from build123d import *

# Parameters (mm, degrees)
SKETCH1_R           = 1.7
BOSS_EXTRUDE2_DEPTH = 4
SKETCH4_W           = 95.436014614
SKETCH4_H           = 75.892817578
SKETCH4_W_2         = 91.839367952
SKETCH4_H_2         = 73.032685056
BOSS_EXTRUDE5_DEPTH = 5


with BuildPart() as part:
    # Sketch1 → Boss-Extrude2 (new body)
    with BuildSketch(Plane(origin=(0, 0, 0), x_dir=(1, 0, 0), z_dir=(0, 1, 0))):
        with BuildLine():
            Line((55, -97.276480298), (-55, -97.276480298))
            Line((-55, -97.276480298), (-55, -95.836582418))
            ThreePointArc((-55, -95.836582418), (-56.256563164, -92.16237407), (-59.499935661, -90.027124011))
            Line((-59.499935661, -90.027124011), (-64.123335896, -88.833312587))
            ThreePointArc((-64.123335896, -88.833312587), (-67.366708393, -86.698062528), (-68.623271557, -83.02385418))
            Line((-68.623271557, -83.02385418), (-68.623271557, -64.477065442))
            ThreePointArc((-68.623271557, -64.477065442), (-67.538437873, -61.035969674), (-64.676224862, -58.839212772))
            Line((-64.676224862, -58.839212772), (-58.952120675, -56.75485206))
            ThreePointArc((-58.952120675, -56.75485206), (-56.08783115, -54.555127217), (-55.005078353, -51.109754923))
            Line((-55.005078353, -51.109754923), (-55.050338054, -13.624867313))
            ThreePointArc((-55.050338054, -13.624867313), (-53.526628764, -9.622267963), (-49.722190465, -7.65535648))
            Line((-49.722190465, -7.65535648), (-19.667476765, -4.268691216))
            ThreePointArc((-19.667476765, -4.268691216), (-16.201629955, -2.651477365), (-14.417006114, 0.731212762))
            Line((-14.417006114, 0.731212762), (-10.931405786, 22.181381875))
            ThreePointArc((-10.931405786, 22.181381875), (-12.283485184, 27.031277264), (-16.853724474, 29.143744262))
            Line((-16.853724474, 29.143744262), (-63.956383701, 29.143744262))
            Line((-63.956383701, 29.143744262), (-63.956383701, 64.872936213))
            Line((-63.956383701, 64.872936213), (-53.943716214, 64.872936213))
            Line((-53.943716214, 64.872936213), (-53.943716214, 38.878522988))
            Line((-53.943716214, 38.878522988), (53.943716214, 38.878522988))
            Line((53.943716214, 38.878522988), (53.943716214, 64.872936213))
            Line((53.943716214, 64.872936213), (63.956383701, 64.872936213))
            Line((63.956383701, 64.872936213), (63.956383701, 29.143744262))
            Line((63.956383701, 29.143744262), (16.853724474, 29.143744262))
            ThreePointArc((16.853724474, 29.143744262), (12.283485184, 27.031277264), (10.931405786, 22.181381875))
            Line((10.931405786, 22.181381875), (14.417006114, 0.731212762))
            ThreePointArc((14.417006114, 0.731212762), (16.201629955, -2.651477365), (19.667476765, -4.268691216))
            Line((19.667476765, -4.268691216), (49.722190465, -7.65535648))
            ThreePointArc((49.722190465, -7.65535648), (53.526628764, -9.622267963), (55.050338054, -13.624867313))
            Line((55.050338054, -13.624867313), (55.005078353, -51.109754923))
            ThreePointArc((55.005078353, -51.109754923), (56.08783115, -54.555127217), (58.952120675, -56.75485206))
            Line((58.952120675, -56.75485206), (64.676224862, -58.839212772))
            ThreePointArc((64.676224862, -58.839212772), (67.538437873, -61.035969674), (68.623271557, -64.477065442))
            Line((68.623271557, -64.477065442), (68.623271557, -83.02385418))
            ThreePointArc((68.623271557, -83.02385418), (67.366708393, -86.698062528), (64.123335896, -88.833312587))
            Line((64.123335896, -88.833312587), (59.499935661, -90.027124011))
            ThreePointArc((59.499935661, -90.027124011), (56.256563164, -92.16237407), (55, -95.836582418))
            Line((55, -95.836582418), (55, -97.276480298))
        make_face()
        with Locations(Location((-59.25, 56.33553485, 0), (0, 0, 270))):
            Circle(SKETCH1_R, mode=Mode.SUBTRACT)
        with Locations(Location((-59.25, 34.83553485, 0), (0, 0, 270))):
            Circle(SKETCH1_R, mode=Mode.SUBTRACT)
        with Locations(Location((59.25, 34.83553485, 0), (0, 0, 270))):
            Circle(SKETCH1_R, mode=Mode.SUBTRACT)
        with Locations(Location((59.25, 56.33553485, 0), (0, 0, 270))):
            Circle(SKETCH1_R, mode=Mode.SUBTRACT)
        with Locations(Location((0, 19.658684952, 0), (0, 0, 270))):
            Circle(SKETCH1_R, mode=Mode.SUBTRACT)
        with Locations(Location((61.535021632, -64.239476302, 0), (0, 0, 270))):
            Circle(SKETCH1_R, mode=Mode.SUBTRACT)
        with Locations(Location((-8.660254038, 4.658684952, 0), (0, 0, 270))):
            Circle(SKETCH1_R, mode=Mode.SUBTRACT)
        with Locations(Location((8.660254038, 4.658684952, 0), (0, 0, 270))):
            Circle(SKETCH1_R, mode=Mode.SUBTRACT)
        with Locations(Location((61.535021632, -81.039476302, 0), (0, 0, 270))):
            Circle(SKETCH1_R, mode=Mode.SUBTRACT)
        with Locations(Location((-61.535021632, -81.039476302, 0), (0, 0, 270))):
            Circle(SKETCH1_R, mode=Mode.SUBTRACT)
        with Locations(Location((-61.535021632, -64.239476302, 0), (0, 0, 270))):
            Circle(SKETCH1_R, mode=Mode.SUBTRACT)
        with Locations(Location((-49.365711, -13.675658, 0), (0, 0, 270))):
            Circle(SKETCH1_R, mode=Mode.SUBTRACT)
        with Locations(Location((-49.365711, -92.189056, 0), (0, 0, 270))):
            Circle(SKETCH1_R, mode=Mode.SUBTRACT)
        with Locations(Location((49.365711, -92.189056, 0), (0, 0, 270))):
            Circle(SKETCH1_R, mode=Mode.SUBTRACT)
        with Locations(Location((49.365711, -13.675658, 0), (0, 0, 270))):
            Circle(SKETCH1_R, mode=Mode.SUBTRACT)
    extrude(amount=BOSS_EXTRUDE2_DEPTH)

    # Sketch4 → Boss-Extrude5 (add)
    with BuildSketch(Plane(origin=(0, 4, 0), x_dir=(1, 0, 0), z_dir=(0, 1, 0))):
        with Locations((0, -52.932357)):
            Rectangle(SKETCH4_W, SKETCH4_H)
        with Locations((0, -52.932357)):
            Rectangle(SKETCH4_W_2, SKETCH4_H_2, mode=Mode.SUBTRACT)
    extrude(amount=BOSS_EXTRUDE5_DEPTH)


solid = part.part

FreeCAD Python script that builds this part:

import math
import FreeCAD as App
import Part
import Sketcher

V = App.Vector

doc = App.newDocument("Part")
body = doc.addObject("PartDesign::Body", "Body")

# Sketch on XZ plane
sketch1 = body.newObject("Sketcher::SketchObject", "Sketch")
sketch1.AttachmentSupport = (doc.getObject("XZ_Plane"), [""])
sketch1.MapMode = "FlatFace"
sketch1.addGeometry([
    Part.LineSegment(V(-55, 97.27648, 0), V(55, 97.27648, 0)),  # 0
    Part.LineSegment(V(55, 97.27648, 0), V(55, 95.836582, 0)),  # 1
    Part.ArcOfCircle(Part.Circle(V(61, 95.836582, 0), V(0, 0, 1), 6), math.radians(180), math.radians(255.521853)),  # 2
    Part.LineSegment(V(59.499936, 90.027124, 0), V(64.123336, 88.833313, 0)),  # 3
    Part.ArcOfCircle(Part.Circle(V(62.623272, 83.023854, 0), V(0, 0, 1), 6), math.radians(0), math.radians(75.521853)),  # 4
    Part.LineSegment(V(68.623272, 83.023854, 0), V(68.623272, 64.477065, 0)),  # 5
    Part.ArcOfCircle(Part.Circle(V(62.623272, 64.477065, 0), V(0, 0, 1), 6), math.radians(-69.99154), math.radians(0)),  # 6
    Part.LineSegment(V(64.676225, 58.839213, 0), V(58.952121, 56.754852, 0)),  # 7
    Part.ArcOfCircle(Part.Circle(V(61.005074, 51.116999, 0), V(0, 0, 1), 6), math.radians(110.00846), math.radians(180.06918)),  # 8
    Part.LineSegment(V(55.005078, 51.109755, 0), V(55.050338, 13.624867, 0)),  # 9
    Part.ArcOfCircle(Part.Circle(V(49.050342, 13.617623, 0), V(0, 0, 1), 6), math.radians(-83.570841), math.radians(0.06918)),  # 10
    Part.LineSegment(V(49.72219, 7.655356, 0), V(19.667477, 4.268691, 0)),  # 11
    Part.ArcOfCircle(Part.Circle(V(20.339325, -1.693575, 0), V(0, 0, 1), 6), math.radians(96.429159), math.radians(170.770249)),  # 12
    Part.LineSegment(V(14.417006, -0.731213, 0), V(10.931406, -22.181382, 0)),  # 13
    Part.ArcOfCircle(Part.Circle(V(16.853724, -23.143744, 0), V(0, 0, 1), 6), math.radians(170.770249), math.radians(270)),  # 14
    Part.LineSegment(V(16.853724, -29.143744, 0), V(63.956384, -29.143744, 0)),  # 15
    Part.LineSegment(V(63.956384, -29.143744, 0), V(63.956384, -64.872936, 0)),  # 16
    Part.LineSegment(V(63.956384, -64.872936, 0), V(53.943716, -64.872936, 0)),  # 17
    Part.LineSegment(V(53.943716, -64.872936, 0), V(53.943716, -38.878523, 0)),  # 18
    Part.LineSegment(V(53.943716, -38.878523, 0), V(-53.943716, -38.878523, 0)),  # 19
    Part.LineSegment(V(-53.943716, -38.878523, 0), V(-53.943716, -64.872936, 0)),  # 20
    Part.LineSegment(V(-53.943716, -64.872936, 0), V(-63.956384, -64.872936, 0)),  # 21
    Part.LineSegment(V(-63.956384, -64.872936, 0), V(-63.956384, -29.143744, 0)),  # 22
    Part.LineSegment(V(-63.956384, -29.143744, 0), V(-16.853724, -29.143744, 0)),  # 23
    Part.ArcOfCircle(Part.Circle(V(-16.853724, -23.143744, 0), V(0, 0, 1), 6), math.radians(-90), math.radians(9.229751)),  # 24
    Part.LineSegment(V(-10.931406, -22.181382, 0), V(-14.417006, -0.731213, 0)),  # 25
    Part.ArcOfCircle(Part.Circle(V(-20.339325, -1.693575, 0), V(0, 0, 1), 6), math.radians(9.229751), math.radians(83.570841)),  # 26
    Part.LineSegment(V(-19.667477, 4.268691, 0), V(-49.72219, 7.655356, 0)),  # 27
    Part.ArcOfCircle(Part.Circle(V(-49.050342, 13.617623, 0), V(0, 0, 1), 6), math.radians(179.93082), math.radians(263.570841)),  # 28
    Part.LineSegment(V(-55.050338, 13.624867, 0), V(-55.005078, 51.109755, 0)),  # 29
    Part.ArcOfCircle(Part.Circle(V(-61.005074, 51.116999, 0), V(0, 0, 1), 6), math.radians(-0.06918), math.radians(69.99154)),  # 30
    Part.LineSegment(V(-58.952121, 56.754852, 0), V(-64.676225, 58.839213, 0)),  # 31
    Part.ArcOfCircle(Part.Circle(V(-62.623272, 64.477065, 0), V(0, 0, 1), 6), math.radians(180), math.radians(249.99154)),  # 32
    Part.LineSegment(V(-68.623272, 64.477065, 0), V(-68.623272, 83.023854, 0)),  # 33
    Part.ArcOfCircle(Part.Circle(V(-62.623272, 83.023854, 0), V(0, 0, 1), 6), math.radians(104.478147), math.radians(180)),  # 34
    Part.LineSegment(V(-64.123336, 88.833313, 0), V(-59.499936, 90.027124, 0)),  # 35
    Part.ArcOfCircle(Part.Circle(V(-61, 95.836582, 0), V(0, 0, 1), 6), math.radians(-75.521853), math.radians(0)),  # 36
    Part.LineSegment(V(-55, 95.836582, 0), V(-55, 97.27648, 0)),  # 37
    Part.Circle(V(49.365711, 92.189056, 0), V(0, 0, 1), 1.7),  # 38
    Part.Circle(V(61.535022, 81.039476, 0), V(0, 0, 1), 1.7),  # 39
    Part.Circle(V(61.535022, 64.239476, 0), V(0, 0, 1), 1.7),  # 40
    Part.Circle(V(-49.365711, 92.189056, 0), V(0, 0, 1), 1.7),  # 41
    Part.Circle(V(-61.535022, 81.039476, 0), V(0, 0, 1), 1.7),  # 42
    Part.Circle(V(-61.535022, 64.239476, 0), V(0, 0, 1), 1.7),  # 43
    Part.Circle(V(49.365711, 13.675658, 0), V(0, 0, 1), 1.7),  # 44
    Part.Circle(V(8.660254, -4.658685, 0), V(0, 0, 1), 1.7),  # 45
    Part.Circle(V(59.25, -34.835535, 0), V(0, 0, 1), 1.7),  # 46
    Part.Circle(V(59.25, -56.335535, 0), V(0, 0, 1), 1.7),  # 47
    Part.Circle(V(-8.660254, -4.658685, 0), V(0, 0, 1), 1.7),  # 48
    Part.Circle(V(0, -19.658685, 0), V(0, 0, 1), 1.7),  # 49
    Part.Circle(V(-49.365711, 13.675658, 0), V(0, 0, 1), 1.7),  # 50
    Part.Circle(V(-59.25, -34.835535, 0), V(0, 0, 1), 1.7),  # 51
    Part.Circle(V(-59.25, -56.335535, 0), V(0, 0, 1), 1.7),  # 52
], False)
sketch1.addConstraint([
    Sketcher.Constraint("Coincident", 0, 2, 1, 1),
    Sketcher.Constraint("Tangent", 1, 2, 2, 1),
    Sketcher.Constraint("Tangent", 2, 2, 3, 1),
    Sketcher.Constraint("Tangent", 3, 2, 4, 2),
    Sketcher.Constraint("Tangent", 4, 1, 5, 1),
    Sketcher.Constraint("Tangent", 5, 2, 6, 2),
    Sketcher.Constraint("Tangent", 6, 1, 7, 1),
    Sketcher.Constraint("Tangent", 7, 2, 8, 1),
    Sketcher.Constraint("Tangent", 8, 2, 9, 1),
    Sketcher.Constraint("Tangent", 9, 2, 10, 2),
    Sketcher.Constraint("Tangent", 10, 1, 11, 1),
    Sketcher.Constraint("Tangent", 11, 2, 12, 1),
    Sketcher.Constraint("Tangent", 12, 2, 13, 1),
    Sketcher.Constraint("Tangent", 13, 2, 14, 1),
    Sketcher.Constraint("Tangent", 14, 2, 15, 1),
    Sketcher.Constraint("Coincident", 15, 2, 16, 1),
    Sketcher.Constraint("Coincident", 16, 2, 17, 1),
    Sketcher.Constraint("Coincident", 17, 2, 18, 1),
    Sketcher.Constraint("Coincident", 18, 2, 19, 1),
    Sketcher.Constraint("Coincident", 19, 2, 20, 1),
    Sketcher.Constraint("Coincident", 20, 2, 21, 1),
    Sketcher.Constraint("Coincident", 21, 2, 22, 1),
    Sketcher.Constraint("Coincident", 22, 2, 23, 1),
    Sketcher.Constraint("Tangent", 23, 2, 24, 1),
    Sketcher.Constraint("Tangent", 24, 2, 25, 1),
    Sketcher.Constraint("Tangent", 25, 2, 26, 1),
    Sketcher.Constraint("Tangent", 26, 2, 27, 1),
    Sketcher.Constraint("Tangent", 27, 2, 28, 2),
    Sketcher.Constraint("Tangent", 28, 1, 29, 1),
    Sketcher.Constraint("Tangent", 29, 2, 30, 1),
    Sketcher.Constraint("Tangent", 30, 2, 31, 1),
    Sketcher.Constraint("Tangent", 31, 2, 32, 2),
    Sketcher.Constraint("Tangent", 32, 1, 33, 1),
    Sketcher.Constraint("Tangent", 33, 2, 34, 2),
    Sketcher.Constraint("Tangent", 34, 1, 35, 1),
    Sketcher.Constraint("Tangent", 35, 2, 36, 1),
    Sketcher.Constraint("Tangent", 36, 2, 37, 1),
    Sketcher.Constraint("Coincident", 37, 2, 0, 1),
    Sketcher.Constraint("Horizontal", 0),
    Sketcher.Constraint("Vertical", 1),
    Sketcher.Constraint("Vertical", 5),
    Sketcher.Constraint("Horizontal", 15),
    Sketcher.Constraint("Vertical", 16),
    Sketcher.Constraint("Horizontal", 17),
    Sketcher.Constraint("Vertical", 18),
    Sketcher.Constraint("Horizontal", 19),
    Sketcher.Constraint("Vertical", 20),
    Sketcher.Constraint("Horizontal", 21),
    Sketcher.Constraint("Vertical", 22),
    Sketcher.Constraint("Horizontal", 23),
    Sketcher.Constraint("Vertical", 33),
    Sketcher.Constraint("Vertical", 37),
    Sketcher.Constraint("Equal", 2, 4),
    Sketcher.Constraint("Equal", 4, 6),
    Sketcher.Constraint("Equal", 6, 8),
    Sketcher.Constraint("Equal", 8, 10),
    Sketcher.Constraint("Equal", 10, 12),
    Sketcher.Constraint("Equal", 12, 14),
    Sketcher.Constraint("Equal", 14, 24),
    Sketcher.Constraint("Equal", 24, 26),
    Sketcher.Constraint("Equal", 26, 28),
    Sketcher.Constraint("Equal", 28, 30),
    Sketcher.Constraint("Equal", 30, 32),
    Sketcher.Constraint("Equal", 32, 34),
    Sketcher.Constraint("Equal", 34, 36),
    Sketcher.Constraint("Equal", 38, 39),
    Sketcher.Constraint("Equal", 39, 40),
    Sketcher.Constraint("Equal", 40, 41),
    Sketcher.Constraint("Equal", 41, 42),
    Sketcher.Constraint("Equal", 42, 43),
    Sketcher.Constraint("Equal", 43, 44),
    Sketcher.Constraint("Equal", 44, 45),
    Sketcher.Constraint("Equal", 45, 46),
    Sketcher.Constraint("Equal", 46, 47),
    Sketcher.Constraint("Equal", 47, 48),
    Sketcher.Constraint("Equal", 48, 49),
    Sketcher.Constraint("Equal", 49, 50),
    Sketcher.Constraint("Equal", 50, 51),
    Sketcher.Constraint("Equal", 51, 52),
    Sketcher.Constraint("Symmetric", 14, 3, 24, 3, -2),
    Sketcher.Constraint("Symmetric", 12, 3, 26, 3, -2),
    Sketcher.Constraint("Symmetric", 10, 3, 28, 3, -2),
    Sketcher.Constraint("Symmetric", 8, 3, 30, 3, -2),
    Sketcher.Constraint("Symmetric", 6, 3, 32, 3, -2),
    Sketcher.Constraint("Symmetric", 2, 3, 36, 3, -2),
    Sketcher.Constraint("Symmetric", 38, 3, 41, 3, -2),
    Sketcher.Constraint("Symmetric", 39, 3, 42, 3, -2),
    Sketcher.Constraint("Symmetric", 40, 3, 43, 3, -2),
    Sketcher.Constraint("Symmetric", 45, 3, 48, 3, -2),
    Sketcher.Constraint("Symmetric", 44, 3, 50, 3, -2),
    Sketcher.Constraint("Symmetric", 46, 3, 51, 3, -2),
    Sketcher.Constraint("Symmetric", 47, 3, 52, 3, -2),
    Sketcher.Constraint("Symmetric", 17, 2, 20, 2, -2),
    Sketcher.Constraint("PointOnObject", 49, 3, -2),
    Sketcher.Constraint("Horizontal", 4, 3, 34, 3),
    Sketcher.Constraint("Vertical", 39, 3, 40, 3),
    Sketcher.Constraint("Vertical", 38, 3, 44, 3),
    Sketcher.Constraint("Vertical", 46, 3, 47, 3),
    Sketcher.Constraint("Equal", 17, 21),
    Sketcher.Constraint("Radius", 2, 6.0),
    Sketcher.Constraint("Diameter", 38, 3.4),
    Sketcher.Constraint("DistanceX", 0, 1, 0, 2, 110.0),
    Sketcher.Constraint("DistanceX", -1, 1, 46, 3, 59.25),
    Sketcher.Constraint("DistanceY", -1, 1, 8, 3, 51.116999),
    Sketcher.Constraint("DistanceX", 15, 1, 15, 2, 47.102659),
    Sketcher.Constraint("DistanceY", 5, 2, 5, 1, 18.546789),
    Sketcher.Constraint("DistanceY", 16, 2, 16, 1, 35.729192),
    Sketcher.Constraint("Distance", 3, 4.775041),
    Sketcher.Constraint("Distance", 7, 6.091792),
    Sketcher.Constraint("DistanceX", 17, 2, 17, 1, 10.012667),
    Sketcher.Constraint("DistanceX", 19, 2, 19, 1, 107.887432),
    Sketcher.Constraint("DistanceY", 1, 2, 1, 1, 1.439898),
    Sketcher.Constraint("DistanceY", 18, 1, 18, 2, 25.994413),
    Sketcher.Constraint("DistanceX", -1, 1, 4, 3, 62.623272),
    Sketcher.Constraint("DistanceX", -1, 1, 38, 3, 49.365711),
    Sketcher.Constraint("DistanceX", -1, 1, 39, 3, 61.535022),
    Sketcher.Constraint("DistanceY", -1, 1, 0, 2, 97.27648),
    Sketcher.Constraint("DistanceX", -1, 1, 9, 2, 55.050338),
    Sketcher.Constraint("DistanceX", -1, 1, 10, 1, 49.72219),
    Sketcher.Constraint("DistanceY", -1, 1, 11, 2, 4.268691),
    Sketcher.Constraint("DistanceY", 13, 2, -1, 1, 22.181382),
    Sketcher.Constraint("Distance", 9, 37.484915),
    Sketcher.Constraint("DistanceY", -1, 1, 38, 3, 92.189056),
    Sketcher.Constraint("DistanceY", -1, 1, 39, 3, 81.039476),
    Sketcher.Constraint("DistanceY", -1, 1, 40, 3, 64.239476),
    Sketcher.Constraint("DistanceY", -1, 1, 44, 3, 13.675658),
    Sketcher.Constraint("DistanceX", -1, 1, 45, 3, 8.660254),
    Sketcher.Constraint("DistanceY", 45, 3, -1, 1, 4.658685),
    Sketcher.Constraint("DistanceY", 46, 3, -1, 1, 34.835535),
    Sketcher.Constraint("DistanceY", 47, 3, -1, 1, 56.335535),
    Sketcher.Constraint("DistanceY", 49, 3, -1, 1, 19.658685),
])
pad1 = body.newObject("PartDesign::Pad", "Pad")
pad1.Profile = sketch1
pad1.Length = 4
pad1.Reversed = True

# Sketch on XZ plane
sketch2 = body.newObject("Sketcher::SketchObject", "Sketch001")
sketch2.AttachmentSupport = (doc.getObject("XZ_Plane"), [""])
sketch2.MapMode = "FlatFace"
sketch2.AttachmentOffset = App.Placement(V(0, 0, -4), App.Rotation())
sketch2.addGeometry([
    Part.LineSegment(V(-47.718007, 14.985948, 0), V(-47.718007, 90.878766, 0)),  # 0
    Part.LineSegment(V(-47.718007, 90.878766, 0), V(47.718007, 90.878766, 0)),  # 1
    Part.LineSegment(V(47.718007, 90.878766, 0), V(47.718007, 14.985948, 0)),  # 2
    Part.LineSegment(V(47.718007, 14.985948, 0), V(-47.718007, 14.985948, 0)),  # 3
    Part.LineSegment(V(45.919684, 89.4487, 0), V(-45.919684, 89.4487, 0)),  # 4
    Part.LineSegment(V(-45.919684, 89.4487, 0), V(-45.919684, 16.416014, 0)),  # 5
    Part.LineSegment(V(-45.919684, 16.416014, 0), V(45.919684, 16.416014, 0)),  # 6
    Part.LineSegment(V(45.919684, 16.416014, 0), V(45.919684, 89.4487, 0)),  # 7
], False)
sketch2.addConstraint([
    Sketcher.Constraint("Coincident", 0, 2, 1, 1),
    Sketcher.Constraint("Coincident", 1, 2, 2, 1),
    Sketcher.Constraint("Coincident", 2, 2, 3, 1),
    Sketcher.Constraint("Coincident", 3, 2, 0, 1),
    Sketcher.Constraint("Coincident", 4, 2, 5, 1),
    Sketcher.Constraint("Coincident", 5, 2, 6, 1),
    Sketcher.Constraint("Coincident", 6, 2, 7, 1),
    Sketcher.Constraint("Coincident", 7, 2, 4, 1),
    Sketcher.Constraint("Vertical", 0),
    Sketcher.Constraint("Horizontal", 1),
    Sketcher.Constraint("Vertical", 2),
    Sketcher.Constraint("Horizontal", 3),
    Sketcher.Constraint("Horizontal", 4),
    Sketcher.Constraint("Vertical", 5),
    Sketcher.Constraint("Horizontal", 6),
    Sketcher.Constraint("Vertical", 7),
    Sketcher.Constraint("DistanceY", -1, 1, 4, 2, 89.4487),
    Sketcher.Constraint("DistanceX", 1, 1, 1, 2, 95.436015),
    Sketcher.Constraint("DistanceX", 4, 2, 4, 1, 91.839368),
    Sketcher.Constraint("DistanceY", 0, 1, 0, 2, 75.892818),
    Sketcher.Constraint("DistanceY", 5, 2, 5, 1, 73.032685),
    Sketcher.Constraint("DistanceY", -1, 1, 2, 2, 14.985948),
    Sketcher.Constraint("DistanceX", 4, 2, 1, 2, 93.637691),
    Sketcher.Constraint("DistanceX", 0, 2, -1, 1, 47.718007),
])
pad2 = body.newObject("PartDesign::Pad", "Pad001")
pad2.Profile = sketch2
pad2.Length = 5
pad2.Reversed = True

doc.recompute()
